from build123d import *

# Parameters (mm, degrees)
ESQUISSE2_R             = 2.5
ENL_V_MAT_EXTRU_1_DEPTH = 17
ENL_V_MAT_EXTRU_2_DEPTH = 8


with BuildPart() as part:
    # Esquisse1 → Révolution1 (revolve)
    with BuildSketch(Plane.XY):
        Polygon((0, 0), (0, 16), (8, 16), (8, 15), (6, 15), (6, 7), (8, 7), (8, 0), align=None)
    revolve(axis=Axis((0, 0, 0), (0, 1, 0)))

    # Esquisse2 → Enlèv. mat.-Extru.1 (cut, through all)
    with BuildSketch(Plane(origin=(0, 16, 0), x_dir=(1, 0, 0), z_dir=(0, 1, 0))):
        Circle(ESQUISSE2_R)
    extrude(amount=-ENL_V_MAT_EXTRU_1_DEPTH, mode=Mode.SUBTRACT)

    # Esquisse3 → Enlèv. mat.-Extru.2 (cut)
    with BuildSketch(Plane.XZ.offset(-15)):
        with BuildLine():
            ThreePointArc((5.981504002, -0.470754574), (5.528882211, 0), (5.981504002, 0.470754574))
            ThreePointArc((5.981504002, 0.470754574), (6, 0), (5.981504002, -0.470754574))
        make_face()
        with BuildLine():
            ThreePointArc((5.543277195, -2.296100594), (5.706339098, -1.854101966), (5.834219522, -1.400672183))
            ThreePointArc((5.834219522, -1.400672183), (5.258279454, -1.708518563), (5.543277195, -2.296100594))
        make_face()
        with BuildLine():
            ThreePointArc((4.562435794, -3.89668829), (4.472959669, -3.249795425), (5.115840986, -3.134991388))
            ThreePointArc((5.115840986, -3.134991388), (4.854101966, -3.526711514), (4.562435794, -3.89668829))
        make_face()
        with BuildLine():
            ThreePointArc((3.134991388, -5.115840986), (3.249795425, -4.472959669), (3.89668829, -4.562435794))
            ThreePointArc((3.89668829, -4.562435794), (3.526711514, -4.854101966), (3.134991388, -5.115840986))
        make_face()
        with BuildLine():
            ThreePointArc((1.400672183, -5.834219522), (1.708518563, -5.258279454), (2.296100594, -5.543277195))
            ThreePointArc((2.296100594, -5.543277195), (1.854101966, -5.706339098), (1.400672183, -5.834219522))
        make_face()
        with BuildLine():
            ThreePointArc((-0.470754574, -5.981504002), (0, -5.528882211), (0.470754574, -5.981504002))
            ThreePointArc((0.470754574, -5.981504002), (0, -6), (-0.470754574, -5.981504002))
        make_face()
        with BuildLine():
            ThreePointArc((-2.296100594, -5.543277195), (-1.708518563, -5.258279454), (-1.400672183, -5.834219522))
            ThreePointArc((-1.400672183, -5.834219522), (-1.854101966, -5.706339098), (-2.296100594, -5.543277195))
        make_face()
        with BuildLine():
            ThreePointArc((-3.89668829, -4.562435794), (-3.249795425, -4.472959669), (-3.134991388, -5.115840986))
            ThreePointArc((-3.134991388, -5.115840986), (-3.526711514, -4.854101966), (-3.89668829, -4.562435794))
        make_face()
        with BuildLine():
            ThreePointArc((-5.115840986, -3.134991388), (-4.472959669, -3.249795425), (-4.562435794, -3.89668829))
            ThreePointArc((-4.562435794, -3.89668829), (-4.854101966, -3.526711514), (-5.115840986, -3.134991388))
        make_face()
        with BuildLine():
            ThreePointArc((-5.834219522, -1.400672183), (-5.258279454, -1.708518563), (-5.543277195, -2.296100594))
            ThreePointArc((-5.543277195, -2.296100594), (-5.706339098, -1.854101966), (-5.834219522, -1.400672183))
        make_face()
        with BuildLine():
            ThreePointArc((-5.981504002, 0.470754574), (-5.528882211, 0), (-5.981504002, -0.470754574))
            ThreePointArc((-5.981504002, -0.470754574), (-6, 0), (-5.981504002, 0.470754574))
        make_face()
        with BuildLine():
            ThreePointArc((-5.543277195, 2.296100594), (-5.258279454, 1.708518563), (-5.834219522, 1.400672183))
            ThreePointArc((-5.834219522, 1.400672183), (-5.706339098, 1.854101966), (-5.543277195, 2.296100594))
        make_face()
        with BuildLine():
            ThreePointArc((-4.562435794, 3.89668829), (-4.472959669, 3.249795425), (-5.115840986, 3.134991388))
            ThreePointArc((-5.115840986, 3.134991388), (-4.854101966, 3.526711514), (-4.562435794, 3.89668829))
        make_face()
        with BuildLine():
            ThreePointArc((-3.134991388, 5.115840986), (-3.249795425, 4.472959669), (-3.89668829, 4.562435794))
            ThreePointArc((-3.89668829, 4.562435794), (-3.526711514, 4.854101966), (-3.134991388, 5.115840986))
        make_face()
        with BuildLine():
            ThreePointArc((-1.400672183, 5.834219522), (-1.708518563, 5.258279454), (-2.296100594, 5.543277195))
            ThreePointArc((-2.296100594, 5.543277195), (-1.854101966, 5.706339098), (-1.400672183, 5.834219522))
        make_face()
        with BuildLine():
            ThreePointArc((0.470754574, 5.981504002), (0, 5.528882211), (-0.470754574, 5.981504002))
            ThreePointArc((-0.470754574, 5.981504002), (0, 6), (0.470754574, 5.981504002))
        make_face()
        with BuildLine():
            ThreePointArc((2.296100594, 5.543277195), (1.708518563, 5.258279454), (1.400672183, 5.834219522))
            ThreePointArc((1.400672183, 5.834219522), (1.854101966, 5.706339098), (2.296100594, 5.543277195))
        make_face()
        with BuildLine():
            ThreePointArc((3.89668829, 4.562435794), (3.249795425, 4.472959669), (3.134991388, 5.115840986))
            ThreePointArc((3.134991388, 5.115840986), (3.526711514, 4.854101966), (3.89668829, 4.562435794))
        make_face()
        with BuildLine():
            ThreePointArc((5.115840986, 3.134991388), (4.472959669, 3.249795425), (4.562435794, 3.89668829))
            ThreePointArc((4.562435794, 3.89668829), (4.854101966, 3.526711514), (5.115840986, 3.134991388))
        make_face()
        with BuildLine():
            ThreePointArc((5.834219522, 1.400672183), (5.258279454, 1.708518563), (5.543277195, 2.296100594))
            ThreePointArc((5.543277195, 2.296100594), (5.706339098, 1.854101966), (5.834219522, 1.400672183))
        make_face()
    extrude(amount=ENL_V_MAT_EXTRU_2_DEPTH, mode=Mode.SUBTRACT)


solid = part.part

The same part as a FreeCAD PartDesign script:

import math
import FreeCAD as App
import Part
import Sketcher
from FreeCAD import Vector

doc = App.newDocument("Part")
body = doc.addObject("PartDesign::Body", "Body")

# Sketch on XY plane
sketch1 = doc.addObject("Sketcher::SketchObject", "Sketch")
body.addObject(sketch1)
sketch1.AttachmentSupport = (doc.XY_Plane, [""])
sketch1.MapMode = "FlatFace"
sketch1.addGeometry([
    Part.LineSegment(Vector(0, 16, 0), Vector(0, 0, 0)),  # 0
    Part.LineSegment(Vector(0, 0, 0), Vector(8, 0, 0)),  # 1
    Part.LineSegment(Vector(8, 0, 0), Vector(8, 7, 0)),  # 2
    Part.LineSegment(Vector(8, 7, 0), Vector(6, 7, 0)),  # 3
    Part.LineSegment(Vector(6, 7, 0), Vector(6, 15, 0)),  # 4
    Part.LineSegment(Vector(6, 15, 0), Vector(8, 15, 0)),  # 5
    Part.LineSegment(Vector(8, 15, 0), Vector(8, 16, 0)),  # 6
    Part.LineSegment(Vector(8, 16, 0), Vector(0, 16, 0)),  # 7
], False)
sketch1.addConstraint([
    Sketcher.Constraint("Coincident", 0, 2, 1, 1),
    Sketcher.Constraint("Coincident", 1, 2, 2, 1),
    Sketcher.Constraint("Coincident", 2, 2, 3, 1),
    Sketcher.Constraint("Coincident", 3, 2, 4, 1),
    Sketcher.Constraint("Coincident", 4, 2, 5, 1),
    Sketcher.Constraint("Coincident", 5, 2, 6, 1),
    Sketcher.Constraint("Coincident", 6, 2, 7, 1),
    Sketcher.Constraint("Coincident", 7, 2, 0, 1),
    Sketcher.Constraint("Vertical", 0),
    Sketcher.Constraint("Horizontal", 1),
    Sketcher.Constraint("Vertical", 2),
    Sketcher.Constraint("Horizontal", 3),
    Sketcher.Constraint("Vertical", 4),
    Sketcher.Constraint("Horizontal", 5),
    Sketcher.Constraint("Vertical", 6),
    Sketcher.Constraint("Horizontal", 7),
    Sketcher.Constraint("Coincident", 0, 2, -1, 1),
    Sketcher.Constraint("Vertical", 2, 2, 5, 2),
    Sketcher.Constraint("Equal", 7, 4),
    Sketcher.Constraint("DistanceX", 1, 1, 1, 2, 8.0),
    Sketcher.Constraint("DistanceX", 3, 2, 3, 1, 2.0),
    Sketcher.Constraint("DistanceY", 0, 2, 0, 1, 16.0),
    Sketcher.Constraint("DistanceY", 2, 1, 2, 2, 7.0),
])
revolution = doc.addObject("PartDesign::Revolution", "Revolution")
body.addObject(revolution)
revolution.Profile = sketch1
revolution.ReferenceAxis = (sketch1, ["V_Axis"])
revolution.Angle = 360

# Sketch on XZ plane
sketch2 = doc.addObject("Sketcher::SketchObject", "Sketch001")
body.addObject(sketch2)
sketch2.AttachmentSupport = (doc.XZ_Plane, [""])
sketch2.MapMode = "FlatFace"
sketch2.AttachmentOffset = App.Placement(Vector(0, 0, -16), App.Rotation())
sketch2.addGeometry(Part.Circle(Vector(0, 0, 0), Vector(0, 0, 1), 2.5), False)
sketch2.addConstraint([
    Sketcher.Constraint("Coincident", 0, 3, -1, 1),
    Sketcher.Constraint("Diameter", 0, 5.0),
])
pocket1 = doc.addObject("PartDesign::Pocket", "Pocket")
body.addObject(pocket1)
pocket1.Profile = sketch2
pocket1.Type = "ThroughAll"
pocket1.Reversed = True

# Sketch on XZ plane
sketch3 = doc.addObject("Sketcher::SketchObject", "Sketch002")
body.addObject(sketch3)
sketch3.AttachmentSupport = (doc.XZ_Plane, [""])
sketch3.MapMode = "FlatFace"
sketch3.AttachmentOffset = App.Placement(Vector(0, 0, -15), App.Rotation())
sketch3.addGeometry([
    Part.ArcOfCircle(Part.Circle(Vector(6, 0, 0), Vector(0, 0, 1), 0.471118), math.radians(92.25), math.radians(267.75)),  # 0
    Part.ArcOfCircle(Part.Circle(Vector(0, 0, 0), Vector(0, 0, 1), 6), math.radians(-4.5), math.radians(4.5)),  # 1
    Part.ArcOfCircle(Part.Circle(Vector(0, 0, 0), Vector(0, 0, 1), 6), math.radians(-22.5), math.radians(-13.5)),  # 2
    Part.ArcOfCircle(Part.Circle(Vector(5.706339, -1.854102, 0), Vector(0, 0, 1), 0.471118), math.radians(74.25), math.radians(249.75)),  # 3
    Part.ArcOfCircle(Part.Circle(Vector(4.854102, -3.526712, 0), Vector(0, 0, 1), 0.471118), math.radians(56.25), math.radians(231.75)),  # 4
    Part.ArcOfCircle(Part.Circle(Vector(0, 0, 0), Vector(0, 0, 1), 6), math.radians(-40.5), math.radians(-31.5)),  # 5
    Part.ArcOfCircle(Part.Circle(Vector(3.526712, -4.854102, 0), Vector(0, 0, 1), 0.471118), math.radians(38.25), math.radians(213.75)),  # 6
    Part.ArcOfCircle(Part.Circle(Vector(0, 0, 0), Vector(0, 0, 1), 6), math.radians(-58.5), math.radians(-49.5)),  # 7
    Part.ArcOfCircle(Part.Circle(Vector(1.854102, -5.706339, 0), Vector(0, 0, 1), 0.471118), math.radians(20.25), math.radians(195.75)),  # 8
    Part.ArcOfCircle(Part.Circle(Vector(0, 0, 0), Vector(0, 0, 1), 6), math.radians(-76.5), math.radians(-67.5)),  # 9
    Part.ArcOfCircle(Part.Circle(Vector(0, -6, 0), Vector(0, 0, 1), 0.471118), math.radians(2.25), math.radians(177.75)),  # 10
    Part.ArcOfCircle(Part.Circle(Vector(0, 0, 0), Vector(0, 0, 1), 6), math.radians(-94.5), math.radians(-85.5)),  # 11
    Part.ArcOfCircle(Part.Circle(Vector(-1.854102, -5.706339, 0), Vector(0, 0, 1), 0.471118), math.radians(-15.75), math.radians(159.75)),  # 12
    Part.ArcOfCircle(Part.Circle(Vector(0, 0, 0), Vector(0, 0, 1), 6), math.radians(-112.5), math.radians(-103.5)),  # 13
    Part.ArcOfCircle(Part.Circle(Vector(-3.526712, -4.854102, 0), Vector(0, 0, 1), 0.471118), math.radians(-33.75), math.radians(141.75)),  # 14
    Part.ArcOfCircle(Part.Circle(Vector(0, 0, 0), Vector(0, 0, 1), 6), math.radians(-130.5), math.radians(-121.5)),  # 15
    Part.ArcOfCircle(Part.Circle(Vector(-4.854102, -3.526712, 0), Vector(0, 0, 1), 0.471118), math.radians(-51.75), math.radians(123.75)),  # 16
    Part.ArcOfCircle(Part.Circle(Vector(0, 0, 0), Vector(0, 0, 1), 6), math.radians(-148.5), math.radians(-139.5)),  # 17
    Part.ArcOfCircle(Part.Circle(Vector(-5.706339, -1.854102, 0), Vector(0, 0, 1), 0.471118), math.radians(-69.75), math.radians(105.75)),  # 18
    Part.ArcOfCircle(Part.Circle(Vector(0, 0, 0), Vector(0, 0, 1), 6), math.radians(-166.5), math.radians(-157.5)),  # 19
    Part.ArcOfCircle(Part.Circle(Vector(-6, 0, 0), Vector(0, 0, 1), 0.471118), math.radians(-87.75), math.radians(87.75)),  # 20
    Part.ArcOfCircle(Part.Circle(Vector(0, 0, 0), Vector(0, 0, 1), 6), math.radians(175.5), math.radians(184.5)),  # 21
    Part.ArcOfCircle(Part.Circle(Vector(-5.706339, 1.854102, 0), Vector(0, 0, 1), 0.471118), math.radians(-105.75), math.radians(69.75)),  # 22
    Part.ArcOfCircle(Part.Circle(Vector(0, 0, 0), Vector(0, 0, 1), 6), math.radians(157.5), math.radians(166.5)),  # 23
    Part.ArcOfCircle(Part.Circle(Vector(-4.854102, 3.526712, 0), Vector(0, 0, 1), 0.471118), math.radians(-123.75), math.radians(51.75)),  # 24
    Part.ArcOfCircle(Part.Circle(Vector(0, 0, 0), Vector(0, 0, 1), 6), math.radians(139.5), math.radians(148.5)),  # 25
    Part.ArcOfCircle(Part.Circle(Vector(-3.526712, 4.854102, 0), Vector(0, 0, 1), 0.471118), math.radians(-141.75), math.radians(33.75)),  # 26
    Part.ArcOfCircle(Part.Circle(Vector(0, 0, 0), Vector(0, 0, 1), 6), math.radians(121.5), math.radians(130.5)),  # 27
    Part.ArcOfCircle(Part.Circle(Vector(-1.854102, 5.706339, 0), Vector(0, 0, 1), 0.471118), math.radians(-159.75), math.radians(15.75)),  # 28
    Part.ArcOfCircle(Part.Circle(Vector(0, 0, 0), Vector(0, 0, 1), 6), math.radians(103.5), math.radians(112.5)),  # 29
    Part.ArcOfCircle(Part.Circle(Vector(0, 6, 0), Vector(0, 0, 1), 0.471118), math.radians(-177.75), math.radians(-2.25)),  # 30
    Part.ArcOfCircle(Part.Circle(Vector(0, 0, 0), Vector(0, 0, 1), 6), math.radians(85.5), math.radians(94.5)),  # 31
    Part.ArcOfCircle(Part.Circle(Vector(1.854102, 5.706339, 0), Vector(0, 0, 1), 0.471118), math.radians(164.25), math.radians(339.75)),  # 32
    Part.ArcOfCircle(Part.Circle(Vector(0, 0, 0), Vector(0, 0, 1), 6), math.radians(67.5), math.radians(76.5)),  # 33
    Part.ArcOfCircle(Part.Circle(Vector(3.526712, 4.854102, 0), Vector(0, 0, 1), 0.471118), math.radians(146.25), math.radians(321.75)),  # 34
    Part.ArcOfCircle(Part.Circle(Vector(0, 0, 0), Vector(0, 0, 1), 6), math.radians(49.5), math.radians(58.5)),  # 35
    Part.ArcOfCircle(Part.Circle(Vector(4.854102, 3.526712, 0), Vector(0, 0, 1), 0.471118), math.radians(128.25), math.radians(303.75)),  # 36
    Part.ArcOfCircle(Part.Circle(Vector(0, 0, 0), Vector(0, 0, 1), 6), math.radians(31.5), math.radians(40.5)),  # 37
    Part.ArcOfCircle(Part.Circle(Vector(5.706339, 1.854102, 0), Vector(0, 0, 1), 0.471118), math.radians(110.25), math.radians(285.75)),  # 38
    Part.ArcOfCircle(Part.Circle(Vector(0, 0, 0), Vector(0, 0, 1), 6), math.radians(13.5), math.radians(22.5)),  # 39
], False)
sketch3.addConstraint([
    Sketcher.Constraint("Coincident", 0, 1, 1, 2),
    Sketcher.Constraint("Coincident", 1, 1, 0, 2),
    Sketcher.Constraint("Coincident", 2, 1, 3, 2),
    Sketcher.Constraint("Coincident", 3, 1, 2, 2),
    Sketcher.Constraint("Coincident", 4, 1, 5, 2),
    Sketcher.Constraint("Coincident", 5, 1, 4, 2),
    Sketcher.Constraint("Coincident", 6, 1, 7, 2),
    Sketcher.Constraint("Coincident", 7, 1, 6, 2),
    Sketcher.Constraint("Coincident", 8, 1, 9, 2),
    Sketcher.Constraint("Coincident", 9, 1, 8, 2),
    Sketcher.Constraint("Coincident", 10, 1, 11, 2),
    Sketcher.Constraint("Coincident", 11, 1, 10, 2),
    Sketcher.Constraint("Coincident", 12, 1, 13, 2),
    Sketcher.Constraint("Coincident", 13, 1, 12, 2),
    Sketcher.Constraint("Coincident", 14, 1, 15, 2),
    Sketcher.Constraint("Coincident", 15, 1, 14, 2),
    Sketcher.Constraint("Coincident", 16, 1, 17, 2),
    Sketcher.Constraint("Coincident", 17, 1, 16, 2),
    Sketcher.Constraint("Coincident", 18, 1, 19, 2),
    Sketcher.Constraint("Coincident", 19, 1, 18, 2),
    Sketcher.Constraint("Coincident", 20, 1, 21, 2),
    Sketcher.Constraint("Coincident", 21, 1, 20, 2),
    Sketcher.Constraint("Coincident", 22, 1, 23, 2),
    Sketcher.Constraint("Coincident", 23, 1, 22, 2),
    Sketcher.Constraint("Coincident", 24, 1, 25, 2),
    Sketcher.Constraint("Coincident", 25, 1, 24, 2),
    Sketcher.Constraint("Coincident", 26, 1, 27, 2),
    Sketcher.Constraint("Coincident", 27, 1, 26, 2),
    Sketcher.Constraint("Coincident", 28, 1, 29, 2),
    Sketcher.Constraint("Coincident", 29, 1, 28, 2),
    Sketcher.Constraint("Coincident", 30, 1, 31, 2),
    Sketcher.Constraint("Coincident", 31, 1, 30, 2),
    Sketcher.Constraint("Coincident", 32, 1, 33, 2),
    Sketcher.Constraint("Coincident", 33, 1, 32, 2),
    Sketcher.Constraint("Coincident", 34, 1, 35, 2),
    Sketcher.Constraint("Coincident", 35, 1, 34, 2),
    Sketcher.Constraint("Coincident", 36, 1, 37, 2),
    Sketcher.Constraint("Coincident", 37, 1, 36, 2),
    Sketcher.Constraint("Coincident", 38, 1, 39, 2),
    Sketcher.Constraint("Coincident", 39, 1, 38, 2),
    Sketcher.Constraint("Coincident", 1, 3, -1, 1),
    Sketcher.Constraint("Coincident", 2, 3, -1, 1),
    Sketcher.Constraint("Coincident", 5, 3, -1, 1),
    Sketcher.Constraint("Coincident", 7, 3, -1, 1),
    Sketcher.Constraint("Coincident", 9, 3, -1, 1),
    Sketcher.Constraint("Coincident", 11, 3, -1, 1),
    Sketcher.Constraint("Coincident", 13, 3, -1, 1),
    Sketcher.Constraint("Coincident", 15, 3, -1, 1),
    Sketcher.Constraint("Coincident", 17, 3, -1, 1),
    Sketcher.Constraint("Coincident", 19, 3, -1, 1),
    Sketcher.Constraint("Coincident", 21, 3, -1, 1),
    Sketcher.Constraint("Coincident", 23, 3, -1, 1),
    Sketcher.Constraint("Coincident", 25, 3, -1, 1),
    Sketcher.Constraint("Coincident", 27, 3, -1, 1),
    Sketcher.Constraint("Coincident", 29, 3, -1, 1),
    Sketcher.Constraint("Coincident", 31, 3, -1, 1),
    Sketcher.Constraint("Coincident", 33, 3, -1, 1),
    Sketcher.Constraint("Coincident", 35, 3, -1, 1),
    Sketcher.Constraint("Coincident", 37, 3, -1, 1),
    Sketcher.Constraint("Coincident", 39, 3, -1, 1),
    Sketcher.Constraint("Equal", 1, 2),
    Sketcher.Constraint("Equal", 0, 3),
    Sketcher.Constraint("Equal", 3, 4),
    Sketcher.Constraint("Equal", 2, 5),
    Sketcher.Constraint("Equal", 4, 6),
    Sketcher.Constraint("Equal", 5, 7),
    Sketcher.Constraint("Equal", 6, 8),
    Sketcher.Constraint("Equal", 7, 9),
    Sketcher.Constraint("Equal", 8, 10),
    Sketcher.Constraint("Equal", 9, 11),
    Sketcher.Constraint("Equal", 10, 12),
    Sketcher.Constraint("Equal", 11, 13),
    Sketcher.Constraint("Equal", 12, 14),
    Sketcher.Constraint("Equal", 13, 15),
    Sketcher.Constraint("Equal", 14, 16),
    Sketcher.Constraint("Equal", 15, 17),
    Sketcher.Constraint("Equal", 16, 18),
    Sketcher.Constraint("Equal", 17, 19),
    Sketcher.Constraint("Equal", 18, 20),
    Sketcher.Constraint("Equal", 19, 21),
    Sketcher.Constraint("Equal", 20, 22),
    Sketcher.Constraint("Equal", 21, 23),
    Sketcher.Constraint("Equal", 22, 24),
    Sketcher.Constraint("Equal", 23, 25),
    Sketcher.Constraint("Equal", 24, 26),
    Sketcher.Constraint("Equal", 25, 27),
    Sketcher.Constraint("Equal", 26, 28),
    Sketcher.Constraint("Equal", 27, 29),
    Sketcher.Constraint("Equal", 28, 30),
    Sketcher.Constraint("Equal", 29, 31),
    Sketcher.Constraint("Equal", 30, 32),
    Sketcher.Constraint("Equal", 31, 33),
    Sketcher.Constraint("Equal", 32, 34),
    Sketcher.Constraint("Equal", 33, 35),
    Sketcher.Constraint("Equal", 34, 36),
    Sketcher.Constraint("Equal", 35, 37),
    Sketcher.Constraint("Equal", 36, 38),
    Sketcher.Constraint("Equal", 37, 39),
    Sketcher.Constraint("Symmetric", 0, 3, 20, 3, -1, 1),
    Sketcher.Constraint("Symmetric", 3, 3, 22, 3, -1, 1),
    Sketcher.Constraint("Symmetric", 4, 3, 24, 3, -1, 1),
    Sketcher.Constraint("Symmetric", 6, 3, 26, 3, -1, 1),
    Sketcher.Constraint("Symmetric", 8, 3, 28, 3, -1, 1),
    Sketcher.Constraint("Symmetric", 10, 3, 30, 3, -1, 1),
    Sketcher.Constraint("Symmetric", 12, 3, 32, 3, -1, 1),
    Sketcher.Constraint("Symmetric", 14, 3, 34, 3, -1, 1),
    Sketcher.Constraint("Symmetric", 16, 3, 36, 3, -1, 1),
    Sketcher.Constraint("Symmetric", 18, 3, 38, 3, -1, 1),
    Sketcher.Constraint("Symmetric", 8, 3, 12, 3, -2),
    Sketcher.Constraint("Symmetric", 6, 3, 14, 3, -2),
    Sketcher.Constraint("Symmetric", 4, 3, 16, 3, -2),
    Sketcher.Constraint("Symmetric", 3, 3, 18, 3, -2),
    Sketcher.Constraint("PointOnObject", 0, 3, -1),
    Sketcher.Constraint("PointOnObject", 10, 3, -2),
    Sketcher.Constraint("Radius", 1, 6.0),
    Sketcher.Constraint("DistanceX", -1, 1, 0, 3, 6.0),
    Sketcher.Constraint("DistanceY", 10, 3, -1, 1, 6.0),
    Sketcher.Constraint("Radius", 0, 0.471118),
    Sketcher.Constraint("DistanceY", 3, 3, -1, 1, 1.854102),
    Sketcher.Constraint("DistanceX", -1, 1, 4, 3, 4.854102),
    Sketcher.Constraint("DistanceY", 6, 3, -1, 1, 4.854102),
    Sketcher.Constraint("DistanceX", -1, 1, 8, 3, 1.854102),
    Sketcher.Constraint("DistanceY", 2, 1, -1, 1, 2.296101),
    Sketcher.Constraint("DistanceX", -1, 1, 8, 1, 2.296101),
    Sketcher.Constraint("DistanceY", 4, 3, -1, 1, 3.526712),
    Sketcher.Constraint("DistanceX", -1, 1, 6, 3, 3.526712),
])
pocket2 = doc.addObject("PartDesign::Pocket", "Pocket001")
body.addObject(pocket2)
pocket2.Profile = sketch3
pocket2.Length = 8
pocket2.Reversed = True

doc.recompute()
